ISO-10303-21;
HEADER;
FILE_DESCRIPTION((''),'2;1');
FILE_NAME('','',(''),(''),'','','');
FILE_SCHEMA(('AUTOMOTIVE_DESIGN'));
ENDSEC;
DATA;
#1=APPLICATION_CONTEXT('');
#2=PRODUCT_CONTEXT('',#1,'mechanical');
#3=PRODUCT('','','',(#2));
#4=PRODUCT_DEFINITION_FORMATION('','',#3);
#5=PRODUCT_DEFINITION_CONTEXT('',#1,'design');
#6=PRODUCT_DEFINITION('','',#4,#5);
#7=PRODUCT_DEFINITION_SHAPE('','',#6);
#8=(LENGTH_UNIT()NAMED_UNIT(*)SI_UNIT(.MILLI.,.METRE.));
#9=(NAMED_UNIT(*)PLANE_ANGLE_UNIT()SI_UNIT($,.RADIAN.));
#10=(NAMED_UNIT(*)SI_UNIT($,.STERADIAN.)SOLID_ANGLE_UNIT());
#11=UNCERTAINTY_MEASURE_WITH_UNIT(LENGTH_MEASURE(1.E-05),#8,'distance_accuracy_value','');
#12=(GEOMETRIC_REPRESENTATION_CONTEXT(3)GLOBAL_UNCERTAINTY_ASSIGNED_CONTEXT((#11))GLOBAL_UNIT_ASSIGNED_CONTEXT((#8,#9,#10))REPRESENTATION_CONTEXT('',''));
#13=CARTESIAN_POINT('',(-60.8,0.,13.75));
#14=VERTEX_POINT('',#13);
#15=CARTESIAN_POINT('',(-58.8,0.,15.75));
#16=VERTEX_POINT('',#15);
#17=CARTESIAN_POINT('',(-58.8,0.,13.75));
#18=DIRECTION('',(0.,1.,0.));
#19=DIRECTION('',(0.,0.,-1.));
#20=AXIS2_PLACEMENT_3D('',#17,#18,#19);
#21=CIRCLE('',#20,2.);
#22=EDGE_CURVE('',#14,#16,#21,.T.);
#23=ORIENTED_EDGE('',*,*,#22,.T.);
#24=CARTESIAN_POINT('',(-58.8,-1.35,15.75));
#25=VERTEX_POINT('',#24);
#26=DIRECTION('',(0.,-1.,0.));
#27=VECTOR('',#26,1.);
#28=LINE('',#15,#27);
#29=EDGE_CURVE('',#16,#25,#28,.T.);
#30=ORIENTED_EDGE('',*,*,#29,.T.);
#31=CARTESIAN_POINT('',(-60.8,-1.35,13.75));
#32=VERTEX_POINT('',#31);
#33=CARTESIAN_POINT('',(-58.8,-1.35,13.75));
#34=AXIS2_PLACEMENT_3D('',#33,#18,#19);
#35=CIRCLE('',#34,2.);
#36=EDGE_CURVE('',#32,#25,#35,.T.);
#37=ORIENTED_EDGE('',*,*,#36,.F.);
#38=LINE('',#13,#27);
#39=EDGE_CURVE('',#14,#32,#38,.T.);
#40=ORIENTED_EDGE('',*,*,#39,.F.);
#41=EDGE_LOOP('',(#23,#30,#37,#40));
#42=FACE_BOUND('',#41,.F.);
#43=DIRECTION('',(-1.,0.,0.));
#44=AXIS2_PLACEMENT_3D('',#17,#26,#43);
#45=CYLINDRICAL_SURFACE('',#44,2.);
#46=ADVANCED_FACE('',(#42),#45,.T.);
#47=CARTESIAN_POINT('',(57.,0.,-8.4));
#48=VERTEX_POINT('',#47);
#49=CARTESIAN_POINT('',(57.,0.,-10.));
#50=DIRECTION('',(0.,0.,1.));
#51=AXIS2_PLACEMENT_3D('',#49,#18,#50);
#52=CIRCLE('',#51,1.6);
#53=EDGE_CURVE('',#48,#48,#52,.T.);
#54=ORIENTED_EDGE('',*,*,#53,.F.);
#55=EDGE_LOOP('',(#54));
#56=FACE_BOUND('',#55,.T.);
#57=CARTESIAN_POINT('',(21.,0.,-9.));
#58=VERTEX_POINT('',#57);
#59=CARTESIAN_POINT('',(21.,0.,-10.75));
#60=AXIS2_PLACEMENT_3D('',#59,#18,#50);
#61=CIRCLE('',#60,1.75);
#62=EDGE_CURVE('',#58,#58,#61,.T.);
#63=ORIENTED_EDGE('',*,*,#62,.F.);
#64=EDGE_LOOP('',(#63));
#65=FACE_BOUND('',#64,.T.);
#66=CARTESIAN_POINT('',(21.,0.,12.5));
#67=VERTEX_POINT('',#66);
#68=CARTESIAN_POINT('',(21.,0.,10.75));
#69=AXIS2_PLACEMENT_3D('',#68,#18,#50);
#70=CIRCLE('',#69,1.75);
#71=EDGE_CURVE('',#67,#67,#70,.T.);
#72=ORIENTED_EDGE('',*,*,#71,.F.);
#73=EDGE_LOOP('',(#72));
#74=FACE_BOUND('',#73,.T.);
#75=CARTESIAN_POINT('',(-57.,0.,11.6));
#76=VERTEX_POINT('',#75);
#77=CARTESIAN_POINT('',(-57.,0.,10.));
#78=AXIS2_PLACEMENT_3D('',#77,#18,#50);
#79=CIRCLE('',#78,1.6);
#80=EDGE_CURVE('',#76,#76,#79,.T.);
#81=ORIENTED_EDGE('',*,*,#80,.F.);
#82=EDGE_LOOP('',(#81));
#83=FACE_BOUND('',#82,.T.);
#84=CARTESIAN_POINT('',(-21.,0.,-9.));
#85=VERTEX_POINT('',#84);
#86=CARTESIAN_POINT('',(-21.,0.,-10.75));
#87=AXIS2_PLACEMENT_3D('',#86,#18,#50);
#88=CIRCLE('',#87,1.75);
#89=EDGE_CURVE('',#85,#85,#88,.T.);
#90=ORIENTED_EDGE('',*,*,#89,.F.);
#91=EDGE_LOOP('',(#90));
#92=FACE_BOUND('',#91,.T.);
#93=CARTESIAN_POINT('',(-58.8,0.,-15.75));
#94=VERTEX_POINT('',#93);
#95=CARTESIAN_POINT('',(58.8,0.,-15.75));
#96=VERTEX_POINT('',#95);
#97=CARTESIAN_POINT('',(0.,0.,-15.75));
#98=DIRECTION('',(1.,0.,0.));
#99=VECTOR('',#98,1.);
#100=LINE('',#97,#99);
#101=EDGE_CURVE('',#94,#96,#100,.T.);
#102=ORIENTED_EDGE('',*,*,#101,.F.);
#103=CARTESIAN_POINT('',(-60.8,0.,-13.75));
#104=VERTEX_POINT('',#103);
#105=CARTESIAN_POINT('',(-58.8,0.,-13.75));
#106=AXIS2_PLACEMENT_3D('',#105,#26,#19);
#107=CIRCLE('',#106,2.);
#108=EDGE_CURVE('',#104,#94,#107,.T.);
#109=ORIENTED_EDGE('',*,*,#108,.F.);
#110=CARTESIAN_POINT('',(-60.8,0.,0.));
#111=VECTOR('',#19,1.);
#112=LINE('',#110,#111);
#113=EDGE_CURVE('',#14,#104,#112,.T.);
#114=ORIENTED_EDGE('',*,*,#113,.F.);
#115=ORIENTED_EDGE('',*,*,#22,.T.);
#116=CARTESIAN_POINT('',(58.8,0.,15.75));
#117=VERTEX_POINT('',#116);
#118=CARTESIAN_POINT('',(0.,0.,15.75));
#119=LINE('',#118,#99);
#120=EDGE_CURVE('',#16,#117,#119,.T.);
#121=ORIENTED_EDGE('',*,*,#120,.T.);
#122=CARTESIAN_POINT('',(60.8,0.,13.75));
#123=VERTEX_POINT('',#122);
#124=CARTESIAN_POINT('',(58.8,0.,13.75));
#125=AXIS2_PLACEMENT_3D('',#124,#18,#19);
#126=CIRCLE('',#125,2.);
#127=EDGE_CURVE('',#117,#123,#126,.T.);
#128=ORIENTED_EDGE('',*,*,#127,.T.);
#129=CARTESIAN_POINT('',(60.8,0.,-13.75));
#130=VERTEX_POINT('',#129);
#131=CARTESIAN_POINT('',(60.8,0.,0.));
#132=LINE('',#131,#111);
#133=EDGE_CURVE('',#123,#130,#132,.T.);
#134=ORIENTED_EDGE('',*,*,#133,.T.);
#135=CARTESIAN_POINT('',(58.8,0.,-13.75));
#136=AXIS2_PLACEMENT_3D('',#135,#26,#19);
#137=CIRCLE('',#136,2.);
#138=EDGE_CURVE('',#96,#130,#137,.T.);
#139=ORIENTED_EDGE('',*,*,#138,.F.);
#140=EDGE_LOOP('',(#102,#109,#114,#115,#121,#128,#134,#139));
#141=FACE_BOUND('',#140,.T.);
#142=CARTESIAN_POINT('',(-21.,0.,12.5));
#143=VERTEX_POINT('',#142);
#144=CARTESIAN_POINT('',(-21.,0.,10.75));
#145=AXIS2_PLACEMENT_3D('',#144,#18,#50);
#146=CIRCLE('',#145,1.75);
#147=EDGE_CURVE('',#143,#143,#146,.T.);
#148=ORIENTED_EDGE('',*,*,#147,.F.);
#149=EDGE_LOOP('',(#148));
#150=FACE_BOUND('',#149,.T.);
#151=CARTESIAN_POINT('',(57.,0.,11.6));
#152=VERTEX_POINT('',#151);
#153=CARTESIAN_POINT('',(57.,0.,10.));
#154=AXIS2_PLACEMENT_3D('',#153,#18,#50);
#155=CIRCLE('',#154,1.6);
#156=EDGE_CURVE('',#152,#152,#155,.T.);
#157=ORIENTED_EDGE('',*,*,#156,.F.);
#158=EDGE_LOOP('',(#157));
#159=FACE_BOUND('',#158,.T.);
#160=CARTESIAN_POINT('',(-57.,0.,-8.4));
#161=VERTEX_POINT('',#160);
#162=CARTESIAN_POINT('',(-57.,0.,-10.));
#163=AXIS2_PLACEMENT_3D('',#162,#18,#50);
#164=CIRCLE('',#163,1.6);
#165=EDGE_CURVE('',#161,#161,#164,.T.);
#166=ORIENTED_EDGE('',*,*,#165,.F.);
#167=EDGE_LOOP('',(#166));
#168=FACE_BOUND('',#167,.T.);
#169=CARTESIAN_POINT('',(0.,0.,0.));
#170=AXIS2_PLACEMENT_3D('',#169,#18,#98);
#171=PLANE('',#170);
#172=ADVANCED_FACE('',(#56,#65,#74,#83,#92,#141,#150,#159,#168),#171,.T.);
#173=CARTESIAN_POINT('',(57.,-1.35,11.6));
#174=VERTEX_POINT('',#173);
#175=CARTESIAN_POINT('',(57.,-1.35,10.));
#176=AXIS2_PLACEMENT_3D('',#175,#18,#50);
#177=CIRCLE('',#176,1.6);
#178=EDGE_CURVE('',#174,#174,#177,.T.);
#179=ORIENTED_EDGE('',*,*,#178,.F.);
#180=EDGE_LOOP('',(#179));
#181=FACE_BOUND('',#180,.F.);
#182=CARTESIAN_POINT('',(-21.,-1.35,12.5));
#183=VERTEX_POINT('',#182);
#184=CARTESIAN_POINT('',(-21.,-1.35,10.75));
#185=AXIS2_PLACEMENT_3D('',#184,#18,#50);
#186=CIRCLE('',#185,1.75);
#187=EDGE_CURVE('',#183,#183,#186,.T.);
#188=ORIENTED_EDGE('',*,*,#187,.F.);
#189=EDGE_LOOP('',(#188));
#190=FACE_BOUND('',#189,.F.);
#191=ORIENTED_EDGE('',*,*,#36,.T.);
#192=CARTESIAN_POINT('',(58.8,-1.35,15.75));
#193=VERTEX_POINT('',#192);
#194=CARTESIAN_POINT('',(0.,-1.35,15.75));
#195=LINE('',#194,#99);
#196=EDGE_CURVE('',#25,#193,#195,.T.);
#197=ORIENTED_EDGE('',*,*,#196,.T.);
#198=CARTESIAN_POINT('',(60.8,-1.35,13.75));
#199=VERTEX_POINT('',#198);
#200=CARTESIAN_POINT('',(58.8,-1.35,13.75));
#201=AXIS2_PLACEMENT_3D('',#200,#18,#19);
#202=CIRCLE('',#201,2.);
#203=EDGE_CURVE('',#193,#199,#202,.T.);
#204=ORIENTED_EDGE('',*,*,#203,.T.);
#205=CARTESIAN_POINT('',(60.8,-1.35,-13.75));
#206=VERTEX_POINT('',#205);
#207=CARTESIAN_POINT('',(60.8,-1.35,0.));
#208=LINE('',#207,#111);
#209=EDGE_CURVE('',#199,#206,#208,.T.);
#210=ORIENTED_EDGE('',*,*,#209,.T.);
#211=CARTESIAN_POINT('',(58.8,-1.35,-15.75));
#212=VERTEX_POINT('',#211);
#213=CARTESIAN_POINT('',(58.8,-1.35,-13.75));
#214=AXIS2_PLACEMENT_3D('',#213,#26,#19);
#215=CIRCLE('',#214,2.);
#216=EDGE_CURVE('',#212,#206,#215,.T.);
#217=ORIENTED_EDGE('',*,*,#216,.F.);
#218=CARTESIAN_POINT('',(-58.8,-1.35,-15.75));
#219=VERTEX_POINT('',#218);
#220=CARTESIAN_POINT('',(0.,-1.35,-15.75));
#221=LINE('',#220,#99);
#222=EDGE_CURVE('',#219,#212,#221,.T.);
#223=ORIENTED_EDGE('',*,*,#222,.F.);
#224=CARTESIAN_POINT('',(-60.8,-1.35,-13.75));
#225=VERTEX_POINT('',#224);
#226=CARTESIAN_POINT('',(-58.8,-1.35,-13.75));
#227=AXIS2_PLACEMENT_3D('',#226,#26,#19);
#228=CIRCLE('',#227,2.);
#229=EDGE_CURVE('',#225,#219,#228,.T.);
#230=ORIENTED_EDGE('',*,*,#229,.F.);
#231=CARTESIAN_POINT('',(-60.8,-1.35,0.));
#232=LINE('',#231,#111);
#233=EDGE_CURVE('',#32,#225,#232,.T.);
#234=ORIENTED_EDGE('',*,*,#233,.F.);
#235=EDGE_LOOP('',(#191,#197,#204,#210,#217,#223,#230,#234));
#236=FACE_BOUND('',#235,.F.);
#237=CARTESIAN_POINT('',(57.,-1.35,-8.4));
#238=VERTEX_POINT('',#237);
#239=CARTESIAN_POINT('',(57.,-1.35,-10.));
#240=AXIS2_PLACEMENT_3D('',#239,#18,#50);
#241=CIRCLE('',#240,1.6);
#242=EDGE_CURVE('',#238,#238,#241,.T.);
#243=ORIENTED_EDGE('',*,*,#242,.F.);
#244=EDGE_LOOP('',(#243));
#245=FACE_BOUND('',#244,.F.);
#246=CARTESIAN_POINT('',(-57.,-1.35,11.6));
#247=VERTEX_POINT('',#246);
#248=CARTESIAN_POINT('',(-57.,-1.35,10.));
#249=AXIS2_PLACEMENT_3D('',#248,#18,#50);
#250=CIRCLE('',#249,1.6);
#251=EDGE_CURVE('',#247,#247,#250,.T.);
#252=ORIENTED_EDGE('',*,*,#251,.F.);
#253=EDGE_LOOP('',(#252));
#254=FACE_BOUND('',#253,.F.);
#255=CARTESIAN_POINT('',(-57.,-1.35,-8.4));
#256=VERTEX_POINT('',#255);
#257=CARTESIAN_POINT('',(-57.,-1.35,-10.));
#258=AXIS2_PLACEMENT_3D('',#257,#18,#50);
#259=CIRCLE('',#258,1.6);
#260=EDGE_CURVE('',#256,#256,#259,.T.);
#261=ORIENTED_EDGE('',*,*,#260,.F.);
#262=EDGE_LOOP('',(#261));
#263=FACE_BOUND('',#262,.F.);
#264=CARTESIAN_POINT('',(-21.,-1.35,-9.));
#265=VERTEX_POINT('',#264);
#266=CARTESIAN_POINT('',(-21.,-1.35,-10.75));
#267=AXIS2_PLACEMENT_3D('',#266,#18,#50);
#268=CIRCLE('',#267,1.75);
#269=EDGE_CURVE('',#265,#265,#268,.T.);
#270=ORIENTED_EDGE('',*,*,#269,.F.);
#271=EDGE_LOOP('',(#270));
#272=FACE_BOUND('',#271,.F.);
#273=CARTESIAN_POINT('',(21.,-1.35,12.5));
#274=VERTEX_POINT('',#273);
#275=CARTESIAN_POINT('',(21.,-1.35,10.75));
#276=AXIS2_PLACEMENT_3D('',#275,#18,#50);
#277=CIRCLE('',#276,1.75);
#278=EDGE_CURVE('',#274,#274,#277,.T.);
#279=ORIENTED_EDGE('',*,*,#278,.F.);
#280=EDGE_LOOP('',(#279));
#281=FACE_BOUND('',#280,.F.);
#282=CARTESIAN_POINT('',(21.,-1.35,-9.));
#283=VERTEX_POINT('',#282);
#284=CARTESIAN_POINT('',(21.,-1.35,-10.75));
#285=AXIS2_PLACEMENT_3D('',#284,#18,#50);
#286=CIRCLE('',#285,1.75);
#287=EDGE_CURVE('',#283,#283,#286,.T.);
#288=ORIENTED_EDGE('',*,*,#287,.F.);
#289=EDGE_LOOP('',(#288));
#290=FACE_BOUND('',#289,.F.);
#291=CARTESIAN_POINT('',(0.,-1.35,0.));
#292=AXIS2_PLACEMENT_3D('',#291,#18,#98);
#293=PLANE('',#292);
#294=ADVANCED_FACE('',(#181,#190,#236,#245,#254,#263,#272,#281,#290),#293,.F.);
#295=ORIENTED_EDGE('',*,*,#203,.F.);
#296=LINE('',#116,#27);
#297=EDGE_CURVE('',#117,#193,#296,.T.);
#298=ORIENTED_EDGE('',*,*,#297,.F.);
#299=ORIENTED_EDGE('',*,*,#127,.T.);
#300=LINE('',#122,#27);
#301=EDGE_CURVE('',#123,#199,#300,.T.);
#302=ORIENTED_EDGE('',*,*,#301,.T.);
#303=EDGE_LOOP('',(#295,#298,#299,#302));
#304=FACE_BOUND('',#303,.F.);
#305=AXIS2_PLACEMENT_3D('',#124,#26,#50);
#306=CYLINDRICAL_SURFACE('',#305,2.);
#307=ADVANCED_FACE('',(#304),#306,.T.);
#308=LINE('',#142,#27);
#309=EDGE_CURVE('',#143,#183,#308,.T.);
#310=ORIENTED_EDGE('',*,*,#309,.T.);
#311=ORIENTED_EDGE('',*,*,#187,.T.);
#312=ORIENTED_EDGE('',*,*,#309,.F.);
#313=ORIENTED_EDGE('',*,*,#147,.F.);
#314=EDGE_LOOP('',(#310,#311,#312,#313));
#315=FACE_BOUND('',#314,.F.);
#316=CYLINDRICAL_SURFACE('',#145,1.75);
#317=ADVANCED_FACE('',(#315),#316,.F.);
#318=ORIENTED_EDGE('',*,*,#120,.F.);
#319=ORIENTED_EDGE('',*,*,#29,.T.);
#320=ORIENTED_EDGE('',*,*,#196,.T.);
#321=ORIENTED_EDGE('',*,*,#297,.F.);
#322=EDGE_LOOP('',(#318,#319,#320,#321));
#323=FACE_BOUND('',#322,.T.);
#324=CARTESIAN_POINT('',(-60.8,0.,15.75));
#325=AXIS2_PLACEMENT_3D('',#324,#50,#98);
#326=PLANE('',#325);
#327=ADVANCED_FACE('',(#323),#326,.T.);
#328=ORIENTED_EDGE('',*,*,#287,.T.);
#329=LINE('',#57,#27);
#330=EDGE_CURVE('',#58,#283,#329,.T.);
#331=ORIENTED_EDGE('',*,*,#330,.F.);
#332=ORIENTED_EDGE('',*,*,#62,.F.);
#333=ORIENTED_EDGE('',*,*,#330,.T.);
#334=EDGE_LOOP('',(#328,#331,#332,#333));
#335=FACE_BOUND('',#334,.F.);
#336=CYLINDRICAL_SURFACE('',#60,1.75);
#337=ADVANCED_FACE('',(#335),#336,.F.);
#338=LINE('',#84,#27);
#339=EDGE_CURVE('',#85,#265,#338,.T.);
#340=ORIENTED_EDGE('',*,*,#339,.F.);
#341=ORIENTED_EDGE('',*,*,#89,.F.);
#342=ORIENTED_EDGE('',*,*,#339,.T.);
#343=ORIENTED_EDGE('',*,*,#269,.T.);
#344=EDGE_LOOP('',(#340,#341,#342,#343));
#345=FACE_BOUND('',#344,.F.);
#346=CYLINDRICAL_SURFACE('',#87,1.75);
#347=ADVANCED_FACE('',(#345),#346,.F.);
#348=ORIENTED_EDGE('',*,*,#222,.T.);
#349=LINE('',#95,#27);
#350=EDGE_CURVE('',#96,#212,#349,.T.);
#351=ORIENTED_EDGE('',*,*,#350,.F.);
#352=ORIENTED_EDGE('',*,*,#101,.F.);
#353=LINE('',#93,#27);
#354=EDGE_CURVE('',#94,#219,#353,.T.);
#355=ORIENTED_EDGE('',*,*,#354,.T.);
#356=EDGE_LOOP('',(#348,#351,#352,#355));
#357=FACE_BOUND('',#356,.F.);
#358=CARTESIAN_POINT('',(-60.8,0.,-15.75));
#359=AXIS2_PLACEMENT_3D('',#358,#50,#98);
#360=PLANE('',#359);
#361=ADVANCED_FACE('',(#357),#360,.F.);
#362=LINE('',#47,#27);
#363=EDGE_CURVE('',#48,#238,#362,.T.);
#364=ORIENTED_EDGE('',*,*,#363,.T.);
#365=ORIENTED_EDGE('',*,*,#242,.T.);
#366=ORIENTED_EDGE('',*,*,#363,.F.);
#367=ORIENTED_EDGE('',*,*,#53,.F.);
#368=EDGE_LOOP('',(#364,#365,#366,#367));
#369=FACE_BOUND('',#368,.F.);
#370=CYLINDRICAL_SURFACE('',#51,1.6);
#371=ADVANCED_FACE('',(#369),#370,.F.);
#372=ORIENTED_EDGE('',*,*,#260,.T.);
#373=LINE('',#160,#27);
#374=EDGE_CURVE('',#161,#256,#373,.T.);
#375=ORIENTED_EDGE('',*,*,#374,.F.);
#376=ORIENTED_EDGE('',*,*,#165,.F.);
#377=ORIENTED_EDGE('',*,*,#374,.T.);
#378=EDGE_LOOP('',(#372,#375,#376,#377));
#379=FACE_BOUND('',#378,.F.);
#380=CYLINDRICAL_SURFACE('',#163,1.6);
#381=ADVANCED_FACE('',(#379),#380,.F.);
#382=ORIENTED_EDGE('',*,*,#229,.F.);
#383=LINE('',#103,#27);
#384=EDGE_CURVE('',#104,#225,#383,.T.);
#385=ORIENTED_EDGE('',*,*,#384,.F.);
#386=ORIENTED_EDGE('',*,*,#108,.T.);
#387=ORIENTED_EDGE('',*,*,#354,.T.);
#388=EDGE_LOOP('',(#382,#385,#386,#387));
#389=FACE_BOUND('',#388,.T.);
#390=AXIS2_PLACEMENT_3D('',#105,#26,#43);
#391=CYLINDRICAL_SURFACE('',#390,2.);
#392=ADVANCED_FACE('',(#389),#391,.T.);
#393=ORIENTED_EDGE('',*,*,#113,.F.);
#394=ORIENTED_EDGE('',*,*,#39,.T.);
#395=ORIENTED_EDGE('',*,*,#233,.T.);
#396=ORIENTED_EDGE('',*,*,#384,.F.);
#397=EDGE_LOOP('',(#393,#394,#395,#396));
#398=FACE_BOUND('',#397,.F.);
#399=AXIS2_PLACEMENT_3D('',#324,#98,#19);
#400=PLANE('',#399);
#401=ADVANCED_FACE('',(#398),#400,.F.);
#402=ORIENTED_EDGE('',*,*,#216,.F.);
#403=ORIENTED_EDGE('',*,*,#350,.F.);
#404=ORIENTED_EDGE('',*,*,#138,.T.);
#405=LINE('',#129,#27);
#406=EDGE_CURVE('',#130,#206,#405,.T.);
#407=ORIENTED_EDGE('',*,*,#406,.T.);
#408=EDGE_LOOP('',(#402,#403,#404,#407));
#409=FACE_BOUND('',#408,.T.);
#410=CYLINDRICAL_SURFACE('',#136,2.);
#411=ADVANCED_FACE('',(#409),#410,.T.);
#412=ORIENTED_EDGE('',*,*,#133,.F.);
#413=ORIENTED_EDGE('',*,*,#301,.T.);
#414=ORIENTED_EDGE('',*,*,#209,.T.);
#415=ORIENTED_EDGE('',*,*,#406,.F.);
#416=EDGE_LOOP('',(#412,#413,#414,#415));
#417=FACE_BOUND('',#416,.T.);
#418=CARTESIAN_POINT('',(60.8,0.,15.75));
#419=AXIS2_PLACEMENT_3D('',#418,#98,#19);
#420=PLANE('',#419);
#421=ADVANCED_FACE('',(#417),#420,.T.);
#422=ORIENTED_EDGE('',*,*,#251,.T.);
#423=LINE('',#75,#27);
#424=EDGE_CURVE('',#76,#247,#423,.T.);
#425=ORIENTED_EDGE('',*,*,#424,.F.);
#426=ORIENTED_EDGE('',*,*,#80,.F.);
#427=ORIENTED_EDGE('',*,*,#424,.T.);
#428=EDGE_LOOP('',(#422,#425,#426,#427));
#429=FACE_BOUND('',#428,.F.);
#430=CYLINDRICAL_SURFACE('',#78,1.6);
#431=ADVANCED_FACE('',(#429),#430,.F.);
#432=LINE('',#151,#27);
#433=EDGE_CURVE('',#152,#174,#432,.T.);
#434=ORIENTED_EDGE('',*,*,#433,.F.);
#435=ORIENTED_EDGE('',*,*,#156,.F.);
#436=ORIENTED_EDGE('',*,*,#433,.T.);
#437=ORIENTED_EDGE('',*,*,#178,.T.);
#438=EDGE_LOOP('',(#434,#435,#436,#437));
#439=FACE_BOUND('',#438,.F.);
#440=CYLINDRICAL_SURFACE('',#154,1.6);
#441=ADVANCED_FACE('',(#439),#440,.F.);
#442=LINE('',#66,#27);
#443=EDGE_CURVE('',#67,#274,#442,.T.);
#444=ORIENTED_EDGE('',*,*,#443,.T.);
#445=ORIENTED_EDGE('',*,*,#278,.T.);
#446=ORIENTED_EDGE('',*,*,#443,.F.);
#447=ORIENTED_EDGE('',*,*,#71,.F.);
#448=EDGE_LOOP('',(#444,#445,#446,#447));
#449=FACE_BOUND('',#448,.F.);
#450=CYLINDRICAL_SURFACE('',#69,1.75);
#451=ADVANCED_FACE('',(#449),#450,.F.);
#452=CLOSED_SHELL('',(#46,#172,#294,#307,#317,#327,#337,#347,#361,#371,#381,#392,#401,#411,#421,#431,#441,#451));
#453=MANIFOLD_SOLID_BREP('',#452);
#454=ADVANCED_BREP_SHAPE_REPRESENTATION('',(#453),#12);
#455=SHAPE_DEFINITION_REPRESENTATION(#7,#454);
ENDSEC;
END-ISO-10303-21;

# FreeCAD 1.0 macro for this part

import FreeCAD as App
import Part
import Sketcher
Q = App.Units.Quantity


def edges_at(feature, points):
    """Names of the edges that pass closest to the given points."""
    edges = feature.Shape.Edges
    near = lambda p: min(range(len(edges)), key=lambda i: edges[i].distToShape(Part.Vertex(*p))[0])
    return sorted({f"Edge{near(p) + 1}" for p in points})


def add_polygon(sketch, points):
    """Adds a closed chain of lines whose ends are joined by coincident constraints."""
    first, n = sketch.GeometryCount, len(points)
    for a, b in zip(points, points[1:] + points[:1]):
        sketch.addGeometry(Part.LineSegment(App.Vector(*a, 0), App.Vector(*b, 0)), False)
    for i in range(n):
        sketch.addConstraint(Sketcher.Constraint("Coincident", first + i, 2, first + (i + 1) % n, 1))

doc = App.newDocument("Part")
body = doc.addObject("PartDesign::Body", "Body")

# Sketch on XZ plane
sketch1 = body.newObject("Sketcher::SketchObject", "Sketch")
sketch1.AttachmentSupport = (doc.getObject("XZ_Plane"), [""])
sketch1.MapMode = "FlatFace"
add_polygon(sketch1, [(-60.8, -15.75), (-60.8, 15.75), (60.8, 15.75), (60.8, -15.75)])  # lines 0-3
sketch1.addGeometry(Part.Circle(App.Vector(-57, 10, 0), App.Vector(0, 0, 1), 1.6), False)  # 4
sketch1.addGeometry(Part.Circle(App.Vector(57, 10, 0), App.Vector(0, 0, 1), 1.6), False)  # 5
sketch1.addGeometry(Part.Circle(App.Vector(-57, -10, 0), App.Vector(0, 0, 1), 1.6), False)  # 6
sketch1.addGeometry(Part.Circle(App.Vector(57, -10, 0), App.Vector(0, 0, 1), 1.6), False)  # 7
sketch1.addConstraint([
    Sketcher.Constraint("Vertical", 0),
    Sketcher.Constraint("Horizontal", 1),
    Sketcher.Constraint("Vertical", 2),
    Sketcher.Constraint("Horizontal", 3),
    Sketcher.Constraint("Equal", 4, 5),
    Sketcher.Constraint("Equal", 5, 6),
    Sketcher.Constraint("Equal", 6, 7),
    Sketcher.Constraint("Symmetric", 5, 3, 6, 3, -1, 1),
    Sketcher.Constraint("Symmetric", 4, 3, 7, 3, -1, 1),
    Sketcher.Constraint("Symmetric", 0, 2, 2, 2, -1, 1),
    Sketcher.Constraint("Symmetric", 4, 3, 5, 3, -2),
    Sketcher.Constraint("Diameter", 4, Q("3.2 mm")),
    Sketcher.Constraint("DistanceX", 1, 1, 1, 2, Q("121.6 mm")),
    Sketcher.Constraint("DistanceY", 0, 1, 0, 2, Q("31.5 mm")),
    Sketcher.Constraint("DistanceX", 4, 3, -1, 1, Q("57 mm")),
    Sketcher.Constraint("DistanceY", -1, 1, 4, 3, Q("10 mm")),
])
pad1 = body.newObject("PartDesign::Pad", "Pad")
pad1.Profile = sketch1
pad1.Length = 1.35
doc.recompute()

fillet = body.newObject("PartDesign::Fillet", "Fillet")
fillet.Base = (pad1, edges_at(pad1, [
    (-60.8, -0.675, -15.75),
    (60.8, -0.675, -15.75),
    (60.8, -0.675, 15.75),
    (-60.8, -0.675, 15.75),
]))
fillet.Radius = 2

# Sketch on XZ plane
sketch2 = body.newObject("Sketcher::SketchObject", "Sketch001")
sketch2.AttachmentSupport = (doc.getObject("XZ_Plane"), [""])
sketch2.MapMode = "FlatFace"
sketch2.addGeometry([
    Part.Circle(App.Vector(-21, 10.75, 0), App.Vector(0, 0, 1), 1.75),
    Part.Circle(App.Vector(21, 10.75, 0), App.Vector(0, 0, 1), 1.75),
    Part.Circle(App.Vector(21, -10.75, 0), App.Vector(0, 0, 1), 1.75),
    Part.Circle(App.Vector(-21, -10.75, 0), App.Vector(0, 0, 1), 1.75),
], False)
sketch2.addConstraint([
    Sketcher.Constraint("Equal", 0, 1),
    Sketcher.Constraint("Equal", 1, 2),
    Sketcher.Constraint("Equal", 2, 3),
    Sketcher.Constraint("Symmetric", 0, 3, 2, 3, -1, 1),
    Sketcher.Constraint("Symmetric", 1, 3, 3, 3, -1, 1),
    Sketcher.Constraint("Symmetric", 0, 3, 1, 3, -2),
    Sketcher.Constraint("Diameter", 0, Q("3.5 mm")),
    Sketcher.Constraint("DistanceX", 0, 3, -1, 1, Q("21 mm")),
    Sketcher.Constraint("DistanceY", 2, 3, 1, 3, Q("21.5 mm")),
])
pocket1 = body.newObject("PartDesign::Pocket", "Pocket")
pocket1.Profile = sketch2
pocket1.Type = "ThroughAll"
pocket1.Reversed = True

doc.recompute()
